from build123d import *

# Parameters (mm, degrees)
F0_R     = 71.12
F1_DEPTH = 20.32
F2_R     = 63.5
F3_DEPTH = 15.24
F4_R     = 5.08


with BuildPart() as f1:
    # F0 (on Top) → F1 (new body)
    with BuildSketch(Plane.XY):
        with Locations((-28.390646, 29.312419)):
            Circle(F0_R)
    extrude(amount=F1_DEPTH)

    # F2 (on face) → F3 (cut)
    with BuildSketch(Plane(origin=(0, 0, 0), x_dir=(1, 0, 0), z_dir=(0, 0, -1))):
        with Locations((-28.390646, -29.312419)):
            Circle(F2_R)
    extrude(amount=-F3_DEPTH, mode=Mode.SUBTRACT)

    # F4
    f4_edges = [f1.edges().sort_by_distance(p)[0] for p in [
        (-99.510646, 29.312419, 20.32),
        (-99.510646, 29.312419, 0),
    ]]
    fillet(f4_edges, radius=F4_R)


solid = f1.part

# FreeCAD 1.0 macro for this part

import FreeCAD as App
import Part
import Sketcher
from FreeCAD import Vector
Q = App.Units.Quantity


def edges_at(feature, points):
    """Names of the edges that pass closest to the given points."""
    edges = feature.Shape.Edges
    near = lambda p: min(range(len(edges)), key=lambda i: edges[i].distToShape(Part.Vertex(*p))[0])
    return sorted({f"Edge{near(p) + 1}" for p in points})

doc = App.newDocument("Part")
params = doc.addObject("Spreadsheet::Sheet", "Params")
for row, (alias, value) in enumerate([
    ("sketch1_diameter", "5.6 in"),
    ("pad1_length", "0.8 in"),
    ("sketch2_diameter", "5 in"),
    ("pocket1_length", "0.6 in"),
    ("fillet_radius", "0.2 in"),
], start=1):
    params.set(f"A{row}", alias)
    params.set(f"B{row}", "=" + value)
    params.setAlias(f"B{row}", alias)

body = doc.addObject("PartDesign::Body", "Body")

# Sketch on XY plane
sketch1 = body.newObject("Sketcher::SketchObject", "Sketch")
sketch1.AttachmentSupport = (doc.getObject("XY_Plane"), [""])
sketch1.MapMode = "FlatFace"
sketch1.addGeometry(Part.Circle(Vector(-28.390646, 29.312419, 0), Vector(0, 0, 1), 71.12), False)
sketch1.addConstraint(Sketcher.Constraint("Diameter", 0, Q("5.6 in")))
sketch1.addConstraint(Sketcher.Constraint("DistanceY", -1, 1, 0, 3, 29.312419))
sketch1.addConstraint(Sketcher.Constraint("DistanceX", 0, 3, -1, 1, 28.390646))
sketch1.setExpression("Constraints[0]", "Params.sketch1_diameter")
pad1 = body.newObject("PartDesign::Pad", "Pad")
pad1.Profile = sketch1
pad1.setExpression("Length", "Params.pad1_length")

# Sketch on XY plane
sketch2 = body.newObject("Sketcher::SketchObject", "Sketch001")
sketch2.AttachmentSupport = (doc.getObject("XY_Plane"), [""])
sketch2.MapMode = "FlatFace"
sketch2.addGeometry(Part.Circle(Vector(-28.390646, 29.312419, 0), Vector(0, 0, 1), 63.5), False)
sketch2.addConstraint(Sketcher.Constraint("Diameter", 0, Q("5 in")))
sketch2.addConstraint(Sketcher.Constraint("DistanceY", -1, 1, 0, 3, 29.312419))
sketch2.addConstraint(Sketcher.Constraint("DistanceX", 0, 3, -1, 1, 28.390646))
sketch2.setExpression("Constraints[0]", "Params.sketch2_diameter")
pocket1 = body.newObject("PartDesign::Pocket", "Pocket")
pocket1.Profile = sketch2
pocket1.setExpression("Length", "Params.pocket1_length")
pocket1.Reversed = True
doc.recompute()

fillet = body.newObject("PartDesign::Fillet", "Fillet")
fillet.Base = (pocket1, edges_at(pocket1, [(-99.511, 29.312, 20.32), (-99.511, 29.312, 0)]))
fillet.setExpression("Radius", "Params.fillet_radius")

doc.recompute()
